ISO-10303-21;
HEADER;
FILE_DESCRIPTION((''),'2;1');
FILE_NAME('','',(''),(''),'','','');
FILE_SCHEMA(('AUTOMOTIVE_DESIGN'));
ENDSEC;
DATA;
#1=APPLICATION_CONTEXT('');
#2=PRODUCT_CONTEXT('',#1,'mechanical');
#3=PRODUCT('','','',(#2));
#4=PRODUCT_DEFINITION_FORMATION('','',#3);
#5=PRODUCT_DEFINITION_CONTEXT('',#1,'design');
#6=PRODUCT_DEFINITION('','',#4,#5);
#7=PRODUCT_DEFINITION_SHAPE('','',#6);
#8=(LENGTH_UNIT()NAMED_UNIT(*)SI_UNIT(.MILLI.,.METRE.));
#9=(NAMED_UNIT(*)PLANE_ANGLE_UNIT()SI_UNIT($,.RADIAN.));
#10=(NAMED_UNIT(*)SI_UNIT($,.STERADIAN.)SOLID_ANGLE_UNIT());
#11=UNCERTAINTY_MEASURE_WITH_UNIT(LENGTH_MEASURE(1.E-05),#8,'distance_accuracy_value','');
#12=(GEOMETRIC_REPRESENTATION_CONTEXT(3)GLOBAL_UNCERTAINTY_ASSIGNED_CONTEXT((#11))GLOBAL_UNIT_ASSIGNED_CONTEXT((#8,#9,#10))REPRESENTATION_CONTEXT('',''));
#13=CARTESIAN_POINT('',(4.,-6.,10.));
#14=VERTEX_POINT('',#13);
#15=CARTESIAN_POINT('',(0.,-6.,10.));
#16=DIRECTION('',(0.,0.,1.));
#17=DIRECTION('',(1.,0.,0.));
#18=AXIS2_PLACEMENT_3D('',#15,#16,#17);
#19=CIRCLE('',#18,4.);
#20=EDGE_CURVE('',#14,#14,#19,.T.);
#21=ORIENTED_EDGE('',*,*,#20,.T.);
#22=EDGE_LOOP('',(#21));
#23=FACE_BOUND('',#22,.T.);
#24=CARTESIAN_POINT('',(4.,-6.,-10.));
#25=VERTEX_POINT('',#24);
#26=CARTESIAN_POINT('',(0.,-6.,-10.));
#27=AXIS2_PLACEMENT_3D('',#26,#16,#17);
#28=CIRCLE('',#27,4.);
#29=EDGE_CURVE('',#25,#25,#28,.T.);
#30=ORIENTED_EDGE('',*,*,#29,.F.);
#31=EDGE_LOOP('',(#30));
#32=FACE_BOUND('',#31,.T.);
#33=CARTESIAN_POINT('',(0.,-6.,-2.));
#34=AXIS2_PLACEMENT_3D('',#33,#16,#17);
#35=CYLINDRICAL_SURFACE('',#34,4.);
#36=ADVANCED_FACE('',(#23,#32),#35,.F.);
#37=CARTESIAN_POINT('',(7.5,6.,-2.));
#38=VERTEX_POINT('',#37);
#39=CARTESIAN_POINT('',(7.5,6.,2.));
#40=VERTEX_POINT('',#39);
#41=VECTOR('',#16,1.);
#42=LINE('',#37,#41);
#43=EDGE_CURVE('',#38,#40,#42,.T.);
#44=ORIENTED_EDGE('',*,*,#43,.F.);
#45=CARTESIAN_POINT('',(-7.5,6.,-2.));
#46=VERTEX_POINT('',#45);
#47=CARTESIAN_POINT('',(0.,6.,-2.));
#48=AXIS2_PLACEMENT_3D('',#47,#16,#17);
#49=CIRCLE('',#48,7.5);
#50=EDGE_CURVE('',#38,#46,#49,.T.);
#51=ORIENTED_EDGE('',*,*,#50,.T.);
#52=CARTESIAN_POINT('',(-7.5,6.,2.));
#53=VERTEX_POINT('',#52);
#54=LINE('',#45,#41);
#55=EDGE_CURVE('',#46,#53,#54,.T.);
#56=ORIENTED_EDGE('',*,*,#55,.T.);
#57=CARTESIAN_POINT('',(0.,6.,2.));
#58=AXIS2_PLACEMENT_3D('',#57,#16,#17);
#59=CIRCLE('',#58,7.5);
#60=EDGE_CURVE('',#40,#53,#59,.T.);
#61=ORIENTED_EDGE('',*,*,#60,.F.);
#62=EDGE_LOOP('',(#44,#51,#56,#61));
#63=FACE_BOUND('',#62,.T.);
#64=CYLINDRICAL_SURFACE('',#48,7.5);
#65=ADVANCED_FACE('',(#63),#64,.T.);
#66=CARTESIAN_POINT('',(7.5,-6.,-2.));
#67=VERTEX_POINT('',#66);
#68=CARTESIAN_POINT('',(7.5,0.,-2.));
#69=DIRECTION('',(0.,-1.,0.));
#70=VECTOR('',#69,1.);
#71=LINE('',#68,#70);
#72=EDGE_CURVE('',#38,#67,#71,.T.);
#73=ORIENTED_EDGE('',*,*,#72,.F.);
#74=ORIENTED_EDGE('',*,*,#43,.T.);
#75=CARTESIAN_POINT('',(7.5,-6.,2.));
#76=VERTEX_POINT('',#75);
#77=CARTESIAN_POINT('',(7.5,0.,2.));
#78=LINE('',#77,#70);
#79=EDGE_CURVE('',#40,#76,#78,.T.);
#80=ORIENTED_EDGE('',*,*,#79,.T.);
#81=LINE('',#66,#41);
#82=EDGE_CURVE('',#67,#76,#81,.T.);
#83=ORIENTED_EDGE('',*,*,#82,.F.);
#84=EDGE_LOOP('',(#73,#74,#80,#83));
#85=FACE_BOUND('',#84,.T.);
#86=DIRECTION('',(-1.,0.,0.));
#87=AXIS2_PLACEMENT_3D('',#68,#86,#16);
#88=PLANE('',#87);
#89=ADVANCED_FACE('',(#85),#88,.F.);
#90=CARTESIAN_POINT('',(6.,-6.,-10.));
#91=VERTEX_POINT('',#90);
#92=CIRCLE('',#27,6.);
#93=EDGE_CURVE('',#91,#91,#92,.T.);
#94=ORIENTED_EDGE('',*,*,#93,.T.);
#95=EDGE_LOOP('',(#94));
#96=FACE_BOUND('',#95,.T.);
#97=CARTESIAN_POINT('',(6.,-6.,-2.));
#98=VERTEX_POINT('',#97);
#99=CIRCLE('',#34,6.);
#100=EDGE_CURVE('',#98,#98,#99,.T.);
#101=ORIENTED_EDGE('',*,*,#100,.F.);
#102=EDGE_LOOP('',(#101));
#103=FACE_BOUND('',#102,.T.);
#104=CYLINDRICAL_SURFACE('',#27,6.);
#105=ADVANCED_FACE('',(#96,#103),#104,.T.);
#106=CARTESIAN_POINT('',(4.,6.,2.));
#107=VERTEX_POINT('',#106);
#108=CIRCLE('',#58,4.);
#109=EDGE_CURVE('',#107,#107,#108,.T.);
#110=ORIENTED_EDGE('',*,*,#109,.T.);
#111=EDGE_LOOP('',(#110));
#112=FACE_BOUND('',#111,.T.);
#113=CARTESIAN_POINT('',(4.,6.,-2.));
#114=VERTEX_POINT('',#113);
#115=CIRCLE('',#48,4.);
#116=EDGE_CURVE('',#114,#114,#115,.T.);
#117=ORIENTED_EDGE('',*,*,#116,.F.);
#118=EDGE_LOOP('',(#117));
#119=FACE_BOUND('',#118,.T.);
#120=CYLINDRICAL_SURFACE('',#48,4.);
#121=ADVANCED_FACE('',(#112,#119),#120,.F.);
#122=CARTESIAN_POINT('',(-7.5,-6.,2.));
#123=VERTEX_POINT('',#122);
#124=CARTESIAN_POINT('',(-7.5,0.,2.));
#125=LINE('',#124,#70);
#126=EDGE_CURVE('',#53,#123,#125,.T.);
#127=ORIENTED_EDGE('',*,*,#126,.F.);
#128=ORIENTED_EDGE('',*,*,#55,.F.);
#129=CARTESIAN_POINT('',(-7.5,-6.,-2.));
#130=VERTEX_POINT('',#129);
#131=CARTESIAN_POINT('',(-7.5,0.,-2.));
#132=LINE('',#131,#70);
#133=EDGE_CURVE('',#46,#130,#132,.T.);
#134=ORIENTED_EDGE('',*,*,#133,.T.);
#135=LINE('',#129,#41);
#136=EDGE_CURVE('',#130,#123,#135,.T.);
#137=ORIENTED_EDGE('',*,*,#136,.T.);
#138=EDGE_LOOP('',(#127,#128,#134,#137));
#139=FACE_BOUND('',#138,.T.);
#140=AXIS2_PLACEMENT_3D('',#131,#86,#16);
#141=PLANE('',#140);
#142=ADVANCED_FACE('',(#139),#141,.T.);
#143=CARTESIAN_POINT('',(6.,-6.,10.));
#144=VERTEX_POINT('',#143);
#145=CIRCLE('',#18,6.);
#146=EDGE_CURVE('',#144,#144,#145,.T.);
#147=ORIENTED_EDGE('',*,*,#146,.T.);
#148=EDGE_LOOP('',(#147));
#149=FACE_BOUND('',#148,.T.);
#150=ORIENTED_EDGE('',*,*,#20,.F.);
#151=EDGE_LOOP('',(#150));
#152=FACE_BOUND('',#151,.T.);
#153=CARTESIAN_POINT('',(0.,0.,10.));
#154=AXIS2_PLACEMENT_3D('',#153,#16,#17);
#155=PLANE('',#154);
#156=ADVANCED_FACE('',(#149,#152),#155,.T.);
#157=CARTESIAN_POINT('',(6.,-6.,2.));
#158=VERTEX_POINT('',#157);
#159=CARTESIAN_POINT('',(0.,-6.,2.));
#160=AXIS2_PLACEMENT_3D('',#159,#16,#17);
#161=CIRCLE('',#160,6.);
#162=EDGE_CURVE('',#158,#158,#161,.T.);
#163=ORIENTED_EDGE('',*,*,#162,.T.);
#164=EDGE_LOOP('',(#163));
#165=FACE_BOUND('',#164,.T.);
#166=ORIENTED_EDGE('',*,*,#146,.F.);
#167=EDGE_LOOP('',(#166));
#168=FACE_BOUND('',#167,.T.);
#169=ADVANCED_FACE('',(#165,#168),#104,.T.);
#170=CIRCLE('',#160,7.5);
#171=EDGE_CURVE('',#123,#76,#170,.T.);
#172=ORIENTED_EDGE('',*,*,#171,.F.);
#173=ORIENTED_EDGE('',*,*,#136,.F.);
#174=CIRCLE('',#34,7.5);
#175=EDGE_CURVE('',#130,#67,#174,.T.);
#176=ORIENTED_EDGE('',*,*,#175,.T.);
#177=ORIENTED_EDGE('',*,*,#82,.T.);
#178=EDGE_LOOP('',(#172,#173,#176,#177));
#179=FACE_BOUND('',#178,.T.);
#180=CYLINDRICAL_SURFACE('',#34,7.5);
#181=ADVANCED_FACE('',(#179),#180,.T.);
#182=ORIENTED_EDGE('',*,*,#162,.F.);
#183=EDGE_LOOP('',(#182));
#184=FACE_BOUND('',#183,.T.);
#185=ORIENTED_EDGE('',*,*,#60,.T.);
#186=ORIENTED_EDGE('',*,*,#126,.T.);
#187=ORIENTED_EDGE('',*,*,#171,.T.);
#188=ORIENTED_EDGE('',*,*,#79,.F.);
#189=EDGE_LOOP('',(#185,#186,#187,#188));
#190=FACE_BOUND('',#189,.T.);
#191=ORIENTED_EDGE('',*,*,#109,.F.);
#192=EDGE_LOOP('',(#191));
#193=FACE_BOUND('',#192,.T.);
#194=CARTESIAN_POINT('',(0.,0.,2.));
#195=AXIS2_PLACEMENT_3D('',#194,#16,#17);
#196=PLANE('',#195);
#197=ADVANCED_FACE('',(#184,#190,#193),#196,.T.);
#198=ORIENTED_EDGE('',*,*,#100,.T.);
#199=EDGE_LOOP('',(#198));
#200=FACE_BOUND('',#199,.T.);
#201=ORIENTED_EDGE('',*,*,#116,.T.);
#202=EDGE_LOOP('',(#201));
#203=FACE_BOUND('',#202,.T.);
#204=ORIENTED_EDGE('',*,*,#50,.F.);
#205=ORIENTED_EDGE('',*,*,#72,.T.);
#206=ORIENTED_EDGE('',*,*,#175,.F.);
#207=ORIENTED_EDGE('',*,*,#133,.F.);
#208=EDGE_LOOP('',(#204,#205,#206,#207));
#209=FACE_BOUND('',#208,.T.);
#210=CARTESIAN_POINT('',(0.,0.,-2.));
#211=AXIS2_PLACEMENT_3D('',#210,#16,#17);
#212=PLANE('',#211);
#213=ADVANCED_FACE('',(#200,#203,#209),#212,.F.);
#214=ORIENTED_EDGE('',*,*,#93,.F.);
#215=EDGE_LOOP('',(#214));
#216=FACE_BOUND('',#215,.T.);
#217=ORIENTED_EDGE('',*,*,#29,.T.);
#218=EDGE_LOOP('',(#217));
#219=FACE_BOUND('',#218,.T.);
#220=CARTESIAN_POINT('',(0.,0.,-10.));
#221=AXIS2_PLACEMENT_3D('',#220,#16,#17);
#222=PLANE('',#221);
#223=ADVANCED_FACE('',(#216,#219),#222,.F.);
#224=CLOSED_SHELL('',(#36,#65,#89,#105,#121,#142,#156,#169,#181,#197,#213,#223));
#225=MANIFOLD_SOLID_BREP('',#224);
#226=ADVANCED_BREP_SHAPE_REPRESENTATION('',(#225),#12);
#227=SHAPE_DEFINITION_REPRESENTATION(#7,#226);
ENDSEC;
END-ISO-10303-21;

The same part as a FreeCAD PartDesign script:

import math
import FreeCAD as App
import Part
import Sketcher

doc = App.newDocument("Part")
body = doc.addObject("PartDesign::Body", "Body")

sketch1 = body.newObject("Sketcher::SketchObject", "Sketch")
sketch1.AttachmentSupport = (doc.getObject("XY_Plane"), [""])
sketch1.MapMode = "FlatFace"
sketch1.addGeometry([
    Part.LineSegment(App.Vector(7.5, -6, 0), App.Vector(7.5, 6, 0)),
    Part.ArcOfCircle(Part.Circle(App.Vector(0, 6, 0), App.Vector(0, 0, 1), 7.5), math.radians(0), math.radians(180)),
    Part.LineSegment(App.Vector(-7.5, 6, 0), App.Vector(-7.5, -6, 0)),
    Part.ArcOfCircle(Part.Circle(App.Vector(0, -6, 0), App.Vector(0, 0, 1), 7.5), math.radians(180), math.radians(360)),
    Part.Circle(App.Vector(0, -6, 0), App.Vector(0, 0, 1), 4),
    Part.Circle(App.Vector(0, 6, 0), App.Vector(0, 0, 1), 4),
], False)
sketch1.addConstraint([
    Sketcher.Constraint("Tangent", 0, 2, 1, 1),
    Sketcher.Constraint("Tangent", 1, 2, 2, 1),
    Sketcher.Constraint("Tangent", 2, 2, 3, 1),
    Sketcher.Constraint("Tangent", 3, 2, 0, 1),
    Sketcher.Constraint("Vertical", 0),
    Sketcher.Constraint("Vertical", 2),
    Sketcher.Constraint("Coincident", 4, 3, 3, 3),
    Sketcher.Constraint("Coincident", 5, 3, 1, 3),
    Sketcher.Constraint("Equal", 4, 5),
    Sketcher.Constraint("Symmetric", 1, 3, 3, 3, -1, 1),
    Sketcher.Constraint("Diameter", 4, 8.0),
    Sketcher.Constraint("Radius", 1, 7.5),
    Sketcher.Constraint("DistanceY", 0, 1, 0, 2, 12.0),
])
pad1 = body.newObject("PartDesign::Pad", "Pad")
pad1.Profile = sketch1
pad1.Type = "TwoLengths"
pad1.Length = 2
pad1.Length2 = 2

sketch2 = body.newObject("Sketcher::SketchObject", "Sketch001")
sketch2.AttachmentSupport = (doc.getObject("XY_Plane"), [""])
sketch2.MapMode = "FlatFace"
sketch2.addGeometry([
    Part.Circle(App.Vector(0, -6, 0), App.Vector(0, 0, 1), 6),
    Part.Circle(App.Vector(0, -6, 0), App.Vector(0, 0, 1), 4),
], False)
sketch2.addConstraint([
    Sketcher.Constraint("Coincident", 1, 3, 0, 3),
    Sketcher.Constraint("PointOnObject", 0, 3, -2),
    Sketcher.Constraint("Diameter", 0, 12.0),
    Sketcher.Constraint("Diameter", 1, 8.0),
    Sketcher.Constraint("DistanceY", 0, 3, -1, 1, 6.0),
])
pad2 = body.newObject("PartDesign::Pad", "Pad001")
pad2.Profile = sketch2
pad2.Type = "TwoLengths"
pad2.Length = 10
pad2.Length2 = 10

doc.recompute()
